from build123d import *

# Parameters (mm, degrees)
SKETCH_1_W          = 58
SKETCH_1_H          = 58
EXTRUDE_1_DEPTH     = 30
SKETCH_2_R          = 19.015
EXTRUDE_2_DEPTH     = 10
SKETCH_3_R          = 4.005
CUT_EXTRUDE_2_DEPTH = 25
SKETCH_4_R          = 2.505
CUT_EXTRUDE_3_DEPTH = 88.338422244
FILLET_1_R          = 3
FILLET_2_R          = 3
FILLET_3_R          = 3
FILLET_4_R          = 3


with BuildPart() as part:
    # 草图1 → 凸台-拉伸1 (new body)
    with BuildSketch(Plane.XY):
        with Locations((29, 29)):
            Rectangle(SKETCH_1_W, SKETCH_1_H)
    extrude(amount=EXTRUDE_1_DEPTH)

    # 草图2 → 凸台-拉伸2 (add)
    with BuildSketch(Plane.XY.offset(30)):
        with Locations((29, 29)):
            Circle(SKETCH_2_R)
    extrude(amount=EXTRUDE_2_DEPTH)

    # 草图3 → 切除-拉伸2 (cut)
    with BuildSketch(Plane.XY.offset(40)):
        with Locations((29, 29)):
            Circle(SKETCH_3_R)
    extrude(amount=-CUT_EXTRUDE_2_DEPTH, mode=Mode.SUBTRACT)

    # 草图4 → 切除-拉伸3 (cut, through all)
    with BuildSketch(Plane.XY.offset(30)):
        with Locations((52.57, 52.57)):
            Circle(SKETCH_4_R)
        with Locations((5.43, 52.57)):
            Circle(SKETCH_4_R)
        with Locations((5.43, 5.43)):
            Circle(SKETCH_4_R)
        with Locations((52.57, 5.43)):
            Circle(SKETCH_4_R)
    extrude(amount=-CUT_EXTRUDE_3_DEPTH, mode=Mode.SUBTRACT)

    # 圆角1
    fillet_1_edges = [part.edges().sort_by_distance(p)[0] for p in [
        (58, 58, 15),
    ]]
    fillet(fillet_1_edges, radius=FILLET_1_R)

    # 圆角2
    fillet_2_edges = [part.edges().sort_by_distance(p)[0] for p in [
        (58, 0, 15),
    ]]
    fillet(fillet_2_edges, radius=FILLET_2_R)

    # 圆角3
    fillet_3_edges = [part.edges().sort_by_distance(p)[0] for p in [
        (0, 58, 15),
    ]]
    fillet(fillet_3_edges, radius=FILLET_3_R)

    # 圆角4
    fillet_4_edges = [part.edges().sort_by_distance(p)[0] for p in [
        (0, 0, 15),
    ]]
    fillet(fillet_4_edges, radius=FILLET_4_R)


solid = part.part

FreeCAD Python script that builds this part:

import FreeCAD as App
import Part
import Sketcher
Q = App.Units.Quantity


def edges_at(feature, points):
    """Names of the edges that pass closest to the given points."""
    edges = feature.Shape.Edges
    near = lambda p: min(range(len(edges)), key=lambda i: edges[i].distToShape(Part.Vertex(*p))[0])
    return sorted({f"Edge{near(p) + 1}" for p in points})


def add_polygon(sketch, points):
    """Adds a closed chain of lines whose ends are joined by coincident constraints."""
    first, n = sketch.GeometryCount, len(points)
    for a, b in zip(points, points[1:] + points[:1]):
        sketch.addGeometry(Part.LineSegment(App.Vector(*a, 0), App.Vector(*b, 0)), False)
    for i in range(n):
        sketch.addConstraint(Sketcher.Constraint("Coincident", first + i, 2, first + (i + 1) % n, 1))

doc = App.newDocument("Part")
params = doc.addObject("Spreadsheet::Sheet", "Params")
for row, (alias, value) in enumerate([
    ("sketch1_width", "58 mm"),
    ("pad1_length", "30 mm"),
    ("sketch2_diameter", "38.03 mm"),
    ("pad2_length", "10 mm"),
    ("sketch3_diameter", "8.01 mm"),
    ("pocket1_length", "25 mm"),
    ("sketch4_diameter", "5.01 mm"),
    ("fillet_radius", "3 mm"),
    ("fillet2_radius", "3 mm"),
    ("fillet3_radius", "3 mm"),
    ("fillet4_radius", "3 mm"),
], start=1):
    params.set(f"A{row}", alias)
    params.set(f"B{row}", "=" + value)
    params.setAlias(f"B{row}", alias)

body = doc.addObject("PartDesign::Body", "Body")

# Sketch on XY plane
sketch1 = doc.addObject("Sketcher::SketchObject", "Sketch")
body.addObject(sketch1)
sketch1.AttachmentSupport = (doc.XY_Plane, [""])
sketch1.MapMode = "FlatFace"
add_polygon(sketch1, [(0, 58), (0, 0), (58, 0), (58, 58)])  # lines 0-3
sketch1.addConstraint([
    Sketcher.Constraint("Vertical", 0),
    Sketcher.Constraint("Horizontal", 1),
    Sketcher.Constraint("Vertical", 2),
    Sketcher.Constraint("Horizontal", 3),
    Sketcher.Constraint("Coincident", 0, 2, -1, 1),
    Sketcher.Constraint("Equal", 3, 0),
    Sketcher.Constraint("DistanceX", 1, 1, 1, 2, Q("58 mm")),
])
sketch1.setExpression("Constraints[10]", "Params.sketch1_width")
pad1 = doc.addObject("PartDesign::Pad", "Pad")
body.addObject(pad1)
pad1.Profile = sketch1
pad1.setExpression("Length", "Params.pad1_length")

# Sketch on XY plane
sketch2 = doc.addObject("Sketcher::SketchObject", "Sketch001")
body.addObject(sketch2)
sketch2.AttachmentSupport = (doc.XY_Plane, [""])
sketch2.MapMode = "FlatFace"
sketch2.AttachmentOffset = App.Placement(App.Vector(0, 0, 30), App.Rotation())
sketch2.addGeometry(Part.Circle(App.Vector(29, 29, 0), App.Vector(0, 0, 1), 19), False)
sketch2.addConstraint([
    Sketcher.Constraint("Diameter", 0, Q("38.03 mm")),
    Sketcher.Constraint("DistanceX", -1, 1, 0, 3, Q("29 mm")),
    Sketcher.Constraint("DistanceY", -1, 1, 0, 3, Q("29 mm")),
])
sketch2.setExpression("Constraints[0]", "Params.sketch2_diameter")
pad2 = doc.addObject("PartDesign::Pad", "Pad001")
body.addObject(pad2)
pad2.Profile = sketch2
pad2.setExpression("Length", "Params.pad2_length")

# Sketch on XY plane
sketch3 = doc.addObject("Sketcher::SketchObject", "Sketch002")
body.addObject(sketch3)
sketch3.AttachmentSupport = (doc.XY_Plane, [""])
sketch3.MapMode = "FlatFace"
sketch3.AttachmentOffset = App.Placement(App.Vector(0, 0, 40), App.Rotation())
sketch3.addGeometry(Part.Circle(App.Vector(29, 29, 0), App.Vector(0, 0, 1), 4), False)
sketch3.addConstraint([
    Sketcher.Constraint("Diameter", 0, Q("8.01 mm")),
    Sketcher.Constraint("DistanceX", -1, 1, 0, 3, Q("29 mm")),
    Sketcher.Constraint("DistanceY", -1, 1, 0, 3, Q("29 mm")),
])
sketch3.setExpression("Constraints[0]", "Params.sketch3_diameter")
pocket1 = doc.addObject("PartDesign::Pocket", "Pocket")
body.addObject(pocket1)
pocket1.Profile = sketch3
pocket1.setExpression("Length", "Params.pocket1_length")

# Sketch on XY plane
sketch4 = doc.addObject("Sketcher::SketchObject", "Sketch003")
body.addObject(sketch4)
sketch4.AttachmentSupport = (doc.XY_Plane, [""])
sketch4.MapMode = "FlatFace"
sketch4.AttachmentOffset = App.Placement(App.Vector(0, 0, 30), App.Rotation())
sketch4.addGeometry([
    Part.Circle(App.Vector(52.6, 52.6, 0), App.Vector(0, 0, 1), 2.5),
    Part.Circle(App.Vector(5.4, 52.6, 0), App.Vector(0, 0, 1), 2.5),
    Part.Circle(App.Vector(5.4, 5.4, 0), App.Vector(0, 0, 1), 2.5),
    Part.Circle(App.Vector(52.6, 5.4, 0), App.Vector(0, 0, 1), 2.5),
], False)
sketch4.addConstraint([
    Sketcher.Constraint("Equal", 0, 1),
    Sketcher.Constraint("Equal", 1, 2),
    Sketcher.Constraint("Equal", 2, 3),
    Sketcher.Constraint("Horizontal", 0, 3, 1, 3),
    Sketcher.Constraint("Horizontal", 2, 3, 3, 3),
    Sketcher.Constraint("Vertical", 1, 3, 2, 3),
    Sketcher.Constraint("Vertical", 0, 3, 3, 3),
    Sketcher.Constraint("Diameter", 0, Q("5.01 mm")),
    Sketcher.Constraint("DistanceX", -1, 1, 0, 3, Q("52.57 mm")),
    Sketcher.Constraint("DistanceY", -1, 1, 0, 3, Q("52.57 mm")),
    Sketcher.Constraint("DistanceX", -1, 1, 1, 3, Q("5.43 mm")),
    Sketcher.Constraint("DistanceY", -1, 1, 2, 3, Q("5.43 mm")),
])
sketch4.setExpression("Constraints[7]", "Params.sketch4_diameter")
pocket2 = doc.addObject("PartDesign::Pocket", "Pocket001")
body.addObject(pocket2)
pocket2.Profile = sketch4
pocket2.Type = "ThroughAll"
doc.recompute()

fillet = doc.addObject("PartDesign::Fillet", "Fillet")
body.addObject(fillet)
fillet.Base = (pocket2, edges_at(pocket2, [(58, 58, 15)]))
fillet.setExpression("Radius", "Params.fillet_radius")
doc.recompute()

fillet2 = doc.addObject("PartDesign::Fillet", "Fillet001")
body.addObject(fillet2)
fillet2.Base = (fillet, edges_at(fillet, [(58, 0, 15)]))
fillet2.setExpression("Radius", "Params.fillet2_radius")
doc.recompute()

fillet3 = doc.addObject("PartDesign::Fillet", "Fillet002")
body.addObject(fillet3)
fillet3.Base = (fillet2, edges_at(fillet2, [(0, 58, 15)]))
fillet3.setExpression("Radius", "Params.fillet3_radius")
doc.recompute()

fillet4 = doc.addObject("PartDesign::Fillet", "Fillet003")
body.addObject(fillet4)
fillet4.Base = (fillet3, edges_at(fillet3, [(0, 0, 15)]))
fillet4.setExpression("Radius", "Params.fillet4_radius")

doc.recompute()
